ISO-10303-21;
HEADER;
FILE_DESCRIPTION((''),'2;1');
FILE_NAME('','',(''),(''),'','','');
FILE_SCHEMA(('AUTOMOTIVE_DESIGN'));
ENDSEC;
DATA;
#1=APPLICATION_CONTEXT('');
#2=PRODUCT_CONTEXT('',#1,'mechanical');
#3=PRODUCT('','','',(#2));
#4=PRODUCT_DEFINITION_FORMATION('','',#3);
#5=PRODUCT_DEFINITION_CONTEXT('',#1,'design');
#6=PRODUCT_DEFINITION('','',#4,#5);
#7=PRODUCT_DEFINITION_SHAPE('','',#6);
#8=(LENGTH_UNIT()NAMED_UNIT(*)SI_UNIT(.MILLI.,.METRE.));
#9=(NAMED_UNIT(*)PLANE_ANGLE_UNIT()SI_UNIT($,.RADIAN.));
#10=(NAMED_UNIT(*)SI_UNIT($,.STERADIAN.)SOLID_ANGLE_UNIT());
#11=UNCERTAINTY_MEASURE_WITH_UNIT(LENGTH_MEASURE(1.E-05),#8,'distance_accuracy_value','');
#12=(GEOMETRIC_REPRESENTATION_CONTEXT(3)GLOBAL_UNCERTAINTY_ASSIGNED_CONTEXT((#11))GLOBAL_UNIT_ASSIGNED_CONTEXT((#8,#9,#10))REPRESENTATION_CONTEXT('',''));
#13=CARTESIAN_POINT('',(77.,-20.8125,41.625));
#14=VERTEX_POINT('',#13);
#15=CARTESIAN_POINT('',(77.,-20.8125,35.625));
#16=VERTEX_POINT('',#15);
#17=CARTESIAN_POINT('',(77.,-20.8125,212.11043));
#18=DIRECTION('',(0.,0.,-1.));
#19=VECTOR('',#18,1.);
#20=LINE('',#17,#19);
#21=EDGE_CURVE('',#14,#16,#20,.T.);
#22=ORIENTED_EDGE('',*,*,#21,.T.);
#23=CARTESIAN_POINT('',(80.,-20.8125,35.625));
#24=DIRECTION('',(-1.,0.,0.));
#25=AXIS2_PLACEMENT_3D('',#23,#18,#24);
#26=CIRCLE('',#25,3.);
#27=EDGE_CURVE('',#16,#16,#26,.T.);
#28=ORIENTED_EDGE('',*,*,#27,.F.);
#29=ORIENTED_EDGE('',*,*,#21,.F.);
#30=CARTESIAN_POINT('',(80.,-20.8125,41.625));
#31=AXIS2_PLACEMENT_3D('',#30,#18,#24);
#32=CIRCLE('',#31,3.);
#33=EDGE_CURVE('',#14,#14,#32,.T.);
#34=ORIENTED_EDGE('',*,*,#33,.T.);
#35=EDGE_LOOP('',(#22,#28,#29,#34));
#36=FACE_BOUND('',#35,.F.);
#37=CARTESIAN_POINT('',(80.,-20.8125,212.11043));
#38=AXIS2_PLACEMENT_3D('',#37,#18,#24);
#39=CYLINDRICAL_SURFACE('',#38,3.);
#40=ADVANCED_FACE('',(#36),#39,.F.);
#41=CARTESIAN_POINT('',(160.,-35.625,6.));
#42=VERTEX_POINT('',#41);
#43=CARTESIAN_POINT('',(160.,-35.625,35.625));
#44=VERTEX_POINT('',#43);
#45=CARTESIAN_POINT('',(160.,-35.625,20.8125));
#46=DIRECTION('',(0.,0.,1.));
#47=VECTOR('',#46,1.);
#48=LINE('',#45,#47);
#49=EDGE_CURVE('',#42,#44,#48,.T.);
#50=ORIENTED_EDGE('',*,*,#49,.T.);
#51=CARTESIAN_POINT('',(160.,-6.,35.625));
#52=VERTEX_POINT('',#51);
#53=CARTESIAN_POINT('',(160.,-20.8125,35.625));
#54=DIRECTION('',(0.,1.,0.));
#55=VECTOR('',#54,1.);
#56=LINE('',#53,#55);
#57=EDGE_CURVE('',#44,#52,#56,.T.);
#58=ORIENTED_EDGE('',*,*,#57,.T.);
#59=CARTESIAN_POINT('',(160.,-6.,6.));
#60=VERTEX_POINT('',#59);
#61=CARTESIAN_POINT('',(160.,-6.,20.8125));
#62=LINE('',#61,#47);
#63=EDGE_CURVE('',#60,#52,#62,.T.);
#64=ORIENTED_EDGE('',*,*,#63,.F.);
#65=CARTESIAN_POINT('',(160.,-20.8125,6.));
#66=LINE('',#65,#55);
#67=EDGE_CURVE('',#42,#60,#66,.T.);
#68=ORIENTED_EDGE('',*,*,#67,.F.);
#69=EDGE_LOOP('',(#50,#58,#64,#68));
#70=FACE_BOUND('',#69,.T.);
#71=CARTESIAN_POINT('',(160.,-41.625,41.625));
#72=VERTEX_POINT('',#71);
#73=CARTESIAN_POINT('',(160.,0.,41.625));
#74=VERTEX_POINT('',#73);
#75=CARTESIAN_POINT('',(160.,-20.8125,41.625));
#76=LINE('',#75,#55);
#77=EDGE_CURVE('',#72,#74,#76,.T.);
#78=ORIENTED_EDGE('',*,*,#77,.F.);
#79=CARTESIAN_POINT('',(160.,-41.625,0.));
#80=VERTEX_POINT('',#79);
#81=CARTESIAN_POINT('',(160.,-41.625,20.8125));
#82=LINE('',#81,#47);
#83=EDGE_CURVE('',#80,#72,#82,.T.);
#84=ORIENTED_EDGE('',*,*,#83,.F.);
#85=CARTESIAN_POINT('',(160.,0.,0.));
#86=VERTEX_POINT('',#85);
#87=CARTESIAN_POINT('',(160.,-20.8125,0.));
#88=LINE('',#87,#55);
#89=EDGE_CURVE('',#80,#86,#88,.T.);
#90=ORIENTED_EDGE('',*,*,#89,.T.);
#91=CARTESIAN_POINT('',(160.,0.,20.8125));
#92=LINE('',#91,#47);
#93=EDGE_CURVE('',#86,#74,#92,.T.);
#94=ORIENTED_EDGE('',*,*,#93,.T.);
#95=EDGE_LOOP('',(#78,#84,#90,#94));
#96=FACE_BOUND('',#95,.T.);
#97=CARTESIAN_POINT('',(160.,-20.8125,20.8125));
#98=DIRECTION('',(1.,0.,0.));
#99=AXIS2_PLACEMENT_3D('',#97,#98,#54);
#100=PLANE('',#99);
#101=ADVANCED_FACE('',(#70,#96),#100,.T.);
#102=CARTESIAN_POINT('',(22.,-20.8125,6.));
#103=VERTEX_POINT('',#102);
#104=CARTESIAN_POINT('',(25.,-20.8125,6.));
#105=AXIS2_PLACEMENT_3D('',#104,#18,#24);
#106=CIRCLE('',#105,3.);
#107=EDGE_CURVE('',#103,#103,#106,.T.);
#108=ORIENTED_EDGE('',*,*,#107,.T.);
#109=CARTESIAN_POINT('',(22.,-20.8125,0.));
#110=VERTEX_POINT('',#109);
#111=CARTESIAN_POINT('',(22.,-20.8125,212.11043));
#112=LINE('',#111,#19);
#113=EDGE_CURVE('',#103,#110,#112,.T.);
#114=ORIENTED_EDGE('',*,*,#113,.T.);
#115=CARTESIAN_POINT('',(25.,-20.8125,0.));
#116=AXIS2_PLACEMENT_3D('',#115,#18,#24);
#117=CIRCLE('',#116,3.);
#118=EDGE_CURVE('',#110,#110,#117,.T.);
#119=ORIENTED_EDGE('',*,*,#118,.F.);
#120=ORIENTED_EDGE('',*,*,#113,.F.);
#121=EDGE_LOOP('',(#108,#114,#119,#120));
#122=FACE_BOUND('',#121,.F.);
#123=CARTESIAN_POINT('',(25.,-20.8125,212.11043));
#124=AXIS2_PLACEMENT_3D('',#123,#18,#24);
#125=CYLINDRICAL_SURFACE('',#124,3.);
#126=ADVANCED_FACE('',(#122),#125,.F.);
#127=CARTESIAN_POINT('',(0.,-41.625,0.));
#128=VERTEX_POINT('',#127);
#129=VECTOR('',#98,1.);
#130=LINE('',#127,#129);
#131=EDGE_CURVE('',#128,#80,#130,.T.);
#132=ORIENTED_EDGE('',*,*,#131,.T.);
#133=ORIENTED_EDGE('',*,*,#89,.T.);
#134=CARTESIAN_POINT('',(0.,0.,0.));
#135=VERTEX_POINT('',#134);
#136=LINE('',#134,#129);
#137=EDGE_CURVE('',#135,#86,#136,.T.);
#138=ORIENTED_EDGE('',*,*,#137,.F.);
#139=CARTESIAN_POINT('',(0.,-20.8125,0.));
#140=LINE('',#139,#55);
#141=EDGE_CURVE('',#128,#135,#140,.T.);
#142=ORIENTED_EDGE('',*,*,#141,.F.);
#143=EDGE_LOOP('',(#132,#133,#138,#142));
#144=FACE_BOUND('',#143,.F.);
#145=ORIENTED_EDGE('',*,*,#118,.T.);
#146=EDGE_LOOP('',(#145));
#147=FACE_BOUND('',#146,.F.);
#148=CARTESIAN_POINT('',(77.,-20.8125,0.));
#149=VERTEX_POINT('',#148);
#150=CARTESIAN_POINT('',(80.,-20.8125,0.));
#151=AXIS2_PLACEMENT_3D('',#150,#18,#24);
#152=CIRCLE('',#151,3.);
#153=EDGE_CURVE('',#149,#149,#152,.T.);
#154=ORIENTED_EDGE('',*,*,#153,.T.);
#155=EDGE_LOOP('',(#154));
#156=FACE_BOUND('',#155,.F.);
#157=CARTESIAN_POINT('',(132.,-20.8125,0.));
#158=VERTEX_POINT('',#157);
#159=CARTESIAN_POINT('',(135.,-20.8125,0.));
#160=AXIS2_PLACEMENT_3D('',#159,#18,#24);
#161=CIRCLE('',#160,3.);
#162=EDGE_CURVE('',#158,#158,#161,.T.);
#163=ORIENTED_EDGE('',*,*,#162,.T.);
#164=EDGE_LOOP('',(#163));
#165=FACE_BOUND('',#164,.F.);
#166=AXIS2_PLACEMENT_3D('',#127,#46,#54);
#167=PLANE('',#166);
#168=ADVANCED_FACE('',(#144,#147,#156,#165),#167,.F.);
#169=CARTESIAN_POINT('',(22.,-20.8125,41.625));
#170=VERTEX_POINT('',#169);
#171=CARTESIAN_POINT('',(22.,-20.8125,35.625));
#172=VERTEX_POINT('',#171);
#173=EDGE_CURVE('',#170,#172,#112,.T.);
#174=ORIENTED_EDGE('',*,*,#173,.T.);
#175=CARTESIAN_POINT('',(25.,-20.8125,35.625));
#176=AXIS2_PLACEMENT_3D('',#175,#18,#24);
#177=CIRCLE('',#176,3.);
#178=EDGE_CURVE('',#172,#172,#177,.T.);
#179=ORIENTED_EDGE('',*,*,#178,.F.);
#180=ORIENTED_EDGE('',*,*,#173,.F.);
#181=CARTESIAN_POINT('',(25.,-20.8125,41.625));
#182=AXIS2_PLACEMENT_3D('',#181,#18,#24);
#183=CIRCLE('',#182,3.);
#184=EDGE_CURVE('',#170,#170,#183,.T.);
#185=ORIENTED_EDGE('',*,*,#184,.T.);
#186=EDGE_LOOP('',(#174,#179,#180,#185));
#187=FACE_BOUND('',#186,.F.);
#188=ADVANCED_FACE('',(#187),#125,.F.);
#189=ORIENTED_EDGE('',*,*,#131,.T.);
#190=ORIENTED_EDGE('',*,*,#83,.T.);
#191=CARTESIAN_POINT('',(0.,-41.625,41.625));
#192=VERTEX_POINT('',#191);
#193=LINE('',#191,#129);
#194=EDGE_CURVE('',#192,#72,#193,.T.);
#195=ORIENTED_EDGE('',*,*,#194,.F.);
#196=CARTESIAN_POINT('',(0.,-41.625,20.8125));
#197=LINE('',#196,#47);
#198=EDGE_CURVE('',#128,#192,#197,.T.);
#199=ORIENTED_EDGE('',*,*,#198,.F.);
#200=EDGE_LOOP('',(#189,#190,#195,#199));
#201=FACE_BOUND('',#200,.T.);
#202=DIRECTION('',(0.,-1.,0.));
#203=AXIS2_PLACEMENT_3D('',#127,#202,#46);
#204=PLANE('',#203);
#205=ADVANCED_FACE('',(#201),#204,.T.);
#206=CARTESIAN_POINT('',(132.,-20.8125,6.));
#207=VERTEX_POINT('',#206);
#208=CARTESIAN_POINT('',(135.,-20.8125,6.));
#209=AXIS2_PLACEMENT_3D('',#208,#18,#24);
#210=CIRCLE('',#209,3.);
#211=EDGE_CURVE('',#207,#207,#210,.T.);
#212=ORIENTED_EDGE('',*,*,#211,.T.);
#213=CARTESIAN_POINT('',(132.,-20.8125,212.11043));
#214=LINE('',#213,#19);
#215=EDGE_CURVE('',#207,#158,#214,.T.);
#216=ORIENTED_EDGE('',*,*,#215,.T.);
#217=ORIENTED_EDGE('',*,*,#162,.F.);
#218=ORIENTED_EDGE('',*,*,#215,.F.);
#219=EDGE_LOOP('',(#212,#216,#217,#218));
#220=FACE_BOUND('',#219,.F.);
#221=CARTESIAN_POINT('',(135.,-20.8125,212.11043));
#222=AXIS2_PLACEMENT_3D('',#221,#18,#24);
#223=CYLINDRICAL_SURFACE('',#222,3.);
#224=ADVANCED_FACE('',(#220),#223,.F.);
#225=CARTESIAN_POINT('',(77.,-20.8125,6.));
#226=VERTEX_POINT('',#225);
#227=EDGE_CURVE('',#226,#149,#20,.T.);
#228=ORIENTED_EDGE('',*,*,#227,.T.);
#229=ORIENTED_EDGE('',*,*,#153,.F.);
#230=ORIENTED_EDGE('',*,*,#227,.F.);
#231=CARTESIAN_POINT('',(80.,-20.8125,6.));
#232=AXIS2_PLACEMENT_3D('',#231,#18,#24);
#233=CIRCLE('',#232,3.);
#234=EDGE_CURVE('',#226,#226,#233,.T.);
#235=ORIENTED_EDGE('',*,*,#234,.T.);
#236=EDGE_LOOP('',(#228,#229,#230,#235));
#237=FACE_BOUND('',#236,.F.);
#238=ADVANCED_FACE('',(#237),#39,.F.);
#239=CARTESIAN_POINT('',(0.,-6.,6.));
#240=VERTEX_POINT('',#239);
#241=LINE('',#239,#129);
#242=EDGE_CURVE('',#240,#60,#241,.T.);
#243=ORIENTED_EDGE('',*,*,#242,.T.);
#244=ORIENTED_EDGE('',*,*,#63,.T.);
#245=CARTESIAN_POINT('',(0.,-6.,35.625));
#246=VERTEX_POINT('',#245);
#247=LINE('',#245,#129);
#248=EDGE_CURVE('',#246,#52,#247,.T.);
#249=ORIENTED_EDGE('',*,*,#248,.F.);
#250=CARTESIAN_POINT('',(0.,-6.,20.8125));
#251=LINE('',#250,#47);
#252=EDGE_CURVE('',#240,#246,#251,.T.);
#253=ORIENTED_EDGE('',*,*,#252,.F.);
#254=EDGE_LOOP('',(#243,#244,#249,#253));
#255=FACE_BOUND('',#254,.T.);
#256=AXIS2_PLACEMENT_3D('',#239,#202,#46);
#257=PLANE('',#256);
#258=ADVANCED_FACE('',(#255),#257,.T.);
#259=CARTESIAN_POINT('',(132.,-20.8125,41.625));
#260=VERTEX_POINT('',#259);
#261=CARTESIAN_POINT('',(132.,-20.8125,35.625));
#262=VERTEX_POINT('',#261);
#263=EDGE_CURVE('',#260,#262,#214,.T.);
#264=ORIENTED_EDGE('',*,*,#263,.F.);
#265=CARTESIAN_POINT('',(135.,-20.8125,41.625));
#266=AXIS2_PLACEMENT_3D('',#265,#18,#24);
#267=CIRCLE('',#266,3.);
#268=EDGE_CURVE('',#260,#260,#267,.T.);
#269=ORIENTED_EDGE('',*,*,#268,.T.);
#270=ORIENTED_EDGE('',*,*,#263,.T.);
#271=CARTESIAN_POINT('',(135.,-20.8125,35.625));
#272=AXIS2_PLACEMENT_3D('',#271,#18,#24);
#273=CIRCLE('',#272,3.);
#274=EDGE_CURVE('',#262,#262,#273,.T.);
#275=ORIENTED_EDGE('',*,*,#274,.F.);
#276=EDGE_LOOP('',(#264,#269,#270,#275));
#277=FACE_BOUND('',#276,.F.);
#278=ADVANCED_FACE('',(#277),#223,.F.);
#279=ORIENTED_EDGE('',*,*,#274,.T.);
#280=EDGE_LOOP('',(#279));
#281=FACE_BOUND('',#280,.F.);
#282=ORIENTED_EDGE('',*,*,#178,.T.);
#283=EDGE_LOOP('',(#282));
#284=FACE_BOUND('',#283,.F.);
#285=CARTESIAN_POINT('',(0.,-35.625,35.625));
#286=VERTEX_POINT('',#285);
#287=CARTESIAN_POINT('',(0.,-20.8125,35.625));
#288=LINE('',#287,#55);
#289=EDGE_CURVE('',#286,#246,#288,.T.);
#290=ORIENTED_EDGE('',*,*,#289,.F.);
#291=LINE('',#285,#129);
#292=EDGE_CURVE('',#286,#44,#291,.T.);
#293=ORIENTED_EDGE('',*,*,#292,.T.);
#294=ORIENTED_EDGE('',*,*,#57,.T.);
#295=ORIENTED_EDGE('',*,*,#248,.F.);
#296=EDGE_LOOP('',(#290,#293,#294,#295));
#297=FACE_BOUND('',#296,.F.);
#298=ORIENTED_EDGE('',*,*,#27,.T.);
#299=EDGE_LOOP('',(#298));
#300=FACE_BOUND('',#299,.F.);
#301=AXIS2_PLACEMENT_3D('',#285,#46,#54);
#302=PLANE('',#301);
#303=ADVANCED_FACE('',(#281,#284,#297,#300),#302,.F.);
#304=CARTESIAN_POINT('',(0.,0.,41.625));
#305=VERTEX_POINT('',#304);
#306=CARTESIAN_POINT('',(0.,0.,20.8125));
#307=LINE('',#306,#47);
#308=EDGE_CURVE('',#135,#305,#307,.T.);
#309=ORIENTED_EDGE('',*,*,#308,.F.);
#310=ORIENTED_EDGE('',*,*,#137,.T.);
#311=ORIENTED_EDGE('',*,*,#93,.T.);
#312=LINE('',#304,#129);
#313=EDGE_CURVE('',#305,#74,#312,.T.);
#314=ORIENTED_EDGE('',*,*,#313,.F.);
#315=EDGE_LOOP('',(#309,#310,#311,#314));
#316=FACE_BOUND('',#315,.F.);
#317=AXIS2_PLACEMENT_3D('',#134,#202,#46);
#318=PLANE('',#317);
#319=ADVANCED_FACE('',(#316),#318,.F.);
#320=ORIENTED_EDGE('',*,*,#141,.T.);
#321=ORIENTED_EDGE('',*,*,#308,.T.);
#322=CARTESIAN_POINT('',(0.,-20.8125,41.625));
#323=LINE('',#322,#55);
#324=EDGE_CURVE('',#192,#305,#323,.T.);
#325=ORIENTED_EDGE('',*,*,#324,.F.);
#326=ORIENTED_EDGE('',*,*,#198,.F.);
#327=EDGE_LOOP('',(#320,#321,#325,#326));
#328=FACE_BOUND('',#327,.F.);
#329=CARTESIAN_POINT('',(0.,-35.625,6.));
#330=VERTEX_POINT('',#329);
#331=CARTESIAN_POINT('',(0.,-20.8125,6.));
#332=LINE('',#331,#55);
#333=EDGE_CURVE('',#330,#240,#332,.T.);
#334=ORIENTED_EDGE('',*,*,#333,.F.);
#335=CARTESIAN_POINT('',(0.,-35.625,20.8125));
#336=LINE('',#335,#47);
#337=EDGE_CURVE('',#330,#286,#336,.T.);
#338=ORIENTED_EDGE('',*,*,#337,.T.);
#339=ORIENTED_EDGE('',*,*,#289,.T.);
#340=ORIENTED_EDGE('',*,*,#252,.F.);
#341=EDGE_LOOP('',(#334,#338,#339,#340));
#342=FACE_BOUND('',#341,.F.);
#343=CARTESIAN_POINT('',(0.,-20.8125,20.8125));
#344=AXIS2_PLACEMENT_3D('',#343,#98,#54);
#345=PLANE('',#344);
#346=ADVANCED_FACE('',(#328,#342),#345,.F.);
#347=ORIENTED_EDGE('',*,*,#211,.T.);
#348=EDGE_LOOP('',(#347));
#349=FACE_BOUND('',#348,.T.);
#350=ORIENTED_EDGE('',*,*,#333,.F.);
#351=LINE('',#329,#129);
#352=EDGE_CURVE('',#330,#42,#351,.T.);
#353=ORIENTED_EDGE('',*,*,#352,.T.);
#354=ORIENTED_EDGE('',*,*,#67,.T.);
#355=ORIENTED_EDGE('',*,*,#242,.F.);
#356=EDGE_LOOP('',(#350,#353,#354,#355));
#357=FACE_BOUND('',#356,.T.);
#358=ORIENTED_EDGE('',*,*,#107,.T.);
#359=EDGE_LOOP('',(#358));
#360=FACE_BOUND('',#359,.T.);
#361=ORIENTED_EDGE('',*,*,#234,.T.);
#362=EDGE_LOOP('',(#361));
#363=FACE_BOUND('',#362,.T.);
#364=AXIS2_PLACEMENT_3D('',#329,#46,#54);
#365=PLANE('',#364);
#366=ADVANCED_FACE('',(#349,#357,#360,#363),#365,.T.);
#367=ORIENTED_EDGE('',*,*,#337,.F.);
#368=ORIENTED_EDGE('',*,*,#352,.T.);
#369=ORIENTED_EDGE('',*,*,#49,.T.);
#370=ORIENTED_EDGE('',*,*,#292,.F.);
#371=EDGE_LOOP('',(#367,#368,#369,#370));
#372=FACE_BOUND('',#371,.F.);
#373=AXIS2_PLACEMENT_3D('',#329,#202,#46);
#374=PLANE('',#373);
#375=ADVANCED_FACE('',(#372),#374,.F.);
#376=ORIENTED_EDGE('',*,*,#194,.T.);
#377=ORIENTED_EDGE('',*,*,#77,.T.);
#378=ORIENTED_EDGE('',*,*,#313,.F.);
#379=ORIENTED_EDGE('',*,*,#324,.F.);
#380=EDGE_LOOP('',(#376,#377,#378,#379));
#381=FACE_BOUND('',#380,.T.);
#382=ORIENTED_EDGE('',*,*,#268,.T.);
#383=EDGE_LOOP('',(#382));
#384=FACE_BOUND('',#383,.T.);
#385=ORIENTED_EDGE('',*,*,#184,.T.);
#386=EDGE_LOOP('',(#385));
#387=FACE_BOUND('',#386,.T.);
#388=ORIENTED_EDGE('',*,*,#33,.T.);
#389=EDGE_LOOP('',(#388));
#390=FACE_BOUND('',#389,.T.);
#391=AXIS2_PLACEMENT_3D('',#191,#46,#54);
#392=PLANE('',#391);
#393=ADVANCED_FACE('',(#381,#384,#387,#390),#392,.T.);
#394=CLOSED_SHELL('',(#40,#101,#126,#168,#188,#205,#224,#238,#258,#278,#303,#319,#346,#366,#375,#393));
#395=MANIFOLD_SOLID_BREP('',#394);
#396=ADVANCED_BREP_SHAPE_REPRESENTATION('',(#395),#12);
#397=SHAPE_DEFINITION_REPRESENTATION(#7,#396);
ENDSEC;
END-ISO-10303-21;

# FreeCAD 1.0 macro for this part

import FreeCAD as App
import Part
import Sketcher

doc = App.newDocument("Part")
body = doc.addObject("PartDesign::Body", "Body")

sketch1 = doc.addObject("Sketcher::SketchObject", "Sketch")
body.addObject(sketch1)
sketch1.AttachmentSupport = (doc.YZ_Plane, [""])
sketch1.MapMode = "FlatFace"
sketch1.addGeometry(Part.LineSegment(App.Vector(-42, 42, 0), App.Vector(-42, 0, 0)), False)
sketch1.addGeometry(Part.LineSegment(App.Vector(-42, 0, 0), App.Vector(0, 0, 0)), False)
sketch1.addGeometry(Part.LineSegment(App.Vector(0, 0, 0), App.Vector(0, 42, 0)), False)
sketch1.addGeometry(Part.LineSegment(App.Vector(0, 42, 0), App.Vector(-42, 42, 0)), False)
sketch1.addGeometry(Part.LineSegment(App.Vector(-6, 6, 0), App.Vector(-36, 6, 0)), False)
sketch1.addGeometry(Part.LineSegment(App.Vector(-36, 6, 0), App.Vector(-36, 36, 0)), False)
sketch1.addGeometry(Part.LineSegment(App.Vector(-36, 36, 0), App.Vector(-6, 36, 0)), False)
sketch1.addGeometry(Part.LineSegment(App.Vector(-6, 36, 0), App.Vector(-6, 6, 0)), False)
sketch1.addConstraint(Sketcher.Constraint("Coincident", 0, 2, 1, 1))
sketch1.addConstraint(Sketcher.Constraint("Coincident", 1, 2, 2, 1))
sketch1.addConstraint(Sketcher.Constraint("Coincident", 2, 2, 3, 1))
sketch1.addConstraint(Sketcher.Constraint("Coincident", 3, 2, 0, 1))
sketch1.addConstraint(Sketcher.Constraint("Coincident", 4, 2, 5, 1))
sketch1.addConstraint(Sketcher.Constraint("Coincident", 5, 2, 6, 1))
sketch1.addConstraint(Sketcher.Constraint("Coincident", 6, 2, 7, 1))
sketch1.addConstraint(Sketcher.Constraint("Coincident", 7, 2, 4, 1))
sketch1.addConstraint(Sketcher.Constraint("Vertical", 0))
sketch1.addConstraint(Sketcher.Constraint("Horizontal", 1))
sketch1.addConstraint(Sketcher.Constraint("Vertical", 2))
sketch1.addConstraint(Sketcher.Constraint("Horizontal", 3))
sketch1.addConstraint(Sketcher.Constraint("Horizontal", 4))
sketch1.addConstraint(Sketcher.Constraint("Vertical", 5))
sketch1.addConstraint(Sketcher.Constraint("Horizontal", 6))
sketch1.addConstraint(Sketcher.Constraint("Vertical", 7))
sketch1.addConstraint(Sketcher.Constraint("Coincident", 1, 2, -1, 1))
sketch1.addConstraint(Sketcher.Constraint("Equal", 3, 0))
sketch1.addConstraint(Sketcher.Constraint("Equal", 6, 5))
sketch1.addConstraint(Sketcher.Constraint("DistanceY", -1, 1, 4, 2, 6.0))
sketch1.addConstraint(Sketcher.Constraint("DistanceX", 6, 2, -1, 1, 6.0))
sketch1.addConstraint(Sketcher.Constraint("DistanceX", 0, 2, 4, 2, 6.0))
sketch1.addConstraint(Sketcher.Constraint("DistanceX", 1, 1, 1, 2, 41.625001))
pad1 = doc.addObject("PartDesign::Pad", "Pad")
body.addObject(pad1)
pad1.Profile = sketch1
pad1.Length = 160

sketch2 = doc.addObject("Sketcher::SketchObject", "Sketch001")
body.addObject(sketch2)
sketch2.AttachmentSupport = (doc.XY_Plane, [""])
sketch2.MapMode = "FlatFace"
sketch2.AttachmentOffset = App.Placement(App.Vector(0, 0, 41.625001), App.Rotation())
sketch2.addGeometry(Part.Circle(App.Vector(135, -20.8, 0), App.Vector(0, 0, 1), 3), False)
sketch2.addGeometry(Part.Circle(App.Vector(80, -20.8, 0), App.Vector(0, 0, 1), 3), False)
sketch2.addGeometry(Part.Circle(App.Vector(25, -20.8, 0), App.Vector(0, 0, 1), 3), False)
sketch2.addConstraint(Sketcher.Constraint("Equal", 0, 1))
sketch2.addConstraint(Sketcher.Constraint("Equal", 1, 2))
sketch2.addConstraint(Sketcher.Constraint("Horizontal", 0, 3, 1, 3))
sketch2.addConstraint(Sketcher.Constraint("Horizontal", 1, 3, 2, 3))
sketch2.addConstraint(Sketcher.Constraint("Diameter", 0, 6.0))
sketch2.addConstraint(Sketcher.Constraint("DistanceX", -1, 1, 0, 3, 135.0))
sketch2.addConstraint(Sketcher.Constraint("DistanceX", -1, 1, 1, 3, 80.0))
sketch2.addConstraint(Sketcher.Constraint("DistanceX", -1, 1, 2, 3, 25.0))
sketch2.addConstraint(Sketcher.Constraint("DistanceY", 0, 3, -1, 1, 20.8125))
doc.recompute()
hole = doc.addObject("PartDesign::Hole", "Hole")
body.addObject(hole)
hole.Profile = sketch2
hole.ThreadType = "None"
hole.Diameter = 6
hole.DepthType = "ThroughAll"

doc.recompute()
